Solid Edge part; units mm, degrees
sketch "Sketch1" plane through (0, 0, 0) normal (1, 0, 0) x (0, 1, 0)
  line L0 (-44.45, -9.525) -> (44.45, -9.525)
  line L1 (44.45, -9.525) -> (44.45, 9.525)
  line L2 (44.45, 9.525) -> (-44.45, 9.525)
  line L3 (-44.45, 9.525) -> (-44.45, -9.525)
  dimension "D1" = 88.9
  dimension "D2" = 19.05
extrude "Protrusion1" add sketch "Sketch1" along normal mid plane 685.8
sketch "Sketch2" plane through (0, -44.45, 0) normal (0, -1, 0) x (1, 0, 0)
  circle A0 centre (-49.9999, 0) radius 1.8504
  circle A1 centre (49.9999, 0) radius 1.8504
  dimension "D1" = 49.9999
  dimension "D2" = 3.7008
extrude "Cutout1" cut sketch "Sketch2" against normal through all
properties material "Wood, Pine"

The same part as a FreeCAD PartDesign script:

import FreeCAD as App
import Part
import Sketcher

V = App.Vector
Q = App.Units.Quantity

doc = App.newDocument("Part")
body = doc.addObject("PartDesign::Body", "Body")

# Sketch on YZ plane
sketch1 = body.newObject("Sketcher::SketchObject", "Sketch")
sketch1.AttachmentSupport = (doc.getObject("YZ_Plane"), [""])
sketch1.MapMode = "FlatFace"
sketch1.addGeometry([
    Part.LineSegment(V(-44.45, 9.525, 0), V(-44.45, -9.525, 0)),
    Part.LineSegment(V(-44.45, -9.525, 0), V(44.45, -9.525, 0)),
    Part.LineSegment(V(44.45, -9.525, 0), V(44.45, 9.525, 0)),
    Part.LineSegment(V(44.45, 9.525, 0), V(-44.45, 9.525, 0)),
], False)
sketch1.addConstraint([
    Sketcher.Constraint("Coincident", 0, 2, 1, 1),
    Sketcher.Constraint("Coincident", 1, 2, 2, 1),
    Sketcher.Constraint("Coincident", 2, 2, 3, 1),
    Sketcher.Constraint("Coincident", 3, 2, 0, 1),
    Sketcher.Constraint("Vertical", 0),
    Sketcher.Constraint("Horizontal", 1),
    Sketcher.Constraint("Vertical", 2),
    Sketcher.Constraint("Horizontal", 3),
    Sketcher.Constraint("Symmetric", 0, 2, 2, 2, -1, 1),
    Sketcher.Constraint("DistanceX", 0, 2, -1, 1, Q("1.75 in")),
    Sketcher.Constraint("DistanceY", 0, 2, 0, 1, Q("0.75 in")),
])
pad1 = body.newObject("PartDesign::Pad", "Pad")
pad1.Profile = sketch1
pad1.Length = Q("27 in")
pad1.Midplane = True

# Sketch on XZ plane
sketch2 = body.newObject("Sketcher::SketchObject", "Sketch001")
sketch2.AttachmentSupport = (doc.getObject("XZ_Plane"), [""])
sketch2.MapMode = "FlatFace"
sketch2.AttachmentOffset = App.Placement(V(0, 0, 1.75 * 25.4), App.Rotation())
sketch2.addGeometry([
    Part.Circle(V(-49.9999, 0, 0), V(0, 0, 1), 1.8504),
    Part.Circle(V(49.9999, 0, 0), V(0, 0, 1), 1.8504),
], False)
sketch2.addConstraint([
    Sketcher.Constraint("Equal", 0, 1),
    Sketcher.Constraint("Symmetric", 0, 3, 1, 3, -1, 1),
    Sketcher.Constraint("PointOnObject", 0, 3, -1),
    Sketcher.Constraint("Diameter", 0, Q("0.1457 in")),
    Sketcher.Constraint("DistanceX", 0, 3, 1, 3, Q("3.937 in")),
])
pocket1 = body.newObject("PartDesign::Pocket", "Pocket")
pocket1.Profile = sketch2
pocket1.Type = "ThroughAll"

doc.recompute()
